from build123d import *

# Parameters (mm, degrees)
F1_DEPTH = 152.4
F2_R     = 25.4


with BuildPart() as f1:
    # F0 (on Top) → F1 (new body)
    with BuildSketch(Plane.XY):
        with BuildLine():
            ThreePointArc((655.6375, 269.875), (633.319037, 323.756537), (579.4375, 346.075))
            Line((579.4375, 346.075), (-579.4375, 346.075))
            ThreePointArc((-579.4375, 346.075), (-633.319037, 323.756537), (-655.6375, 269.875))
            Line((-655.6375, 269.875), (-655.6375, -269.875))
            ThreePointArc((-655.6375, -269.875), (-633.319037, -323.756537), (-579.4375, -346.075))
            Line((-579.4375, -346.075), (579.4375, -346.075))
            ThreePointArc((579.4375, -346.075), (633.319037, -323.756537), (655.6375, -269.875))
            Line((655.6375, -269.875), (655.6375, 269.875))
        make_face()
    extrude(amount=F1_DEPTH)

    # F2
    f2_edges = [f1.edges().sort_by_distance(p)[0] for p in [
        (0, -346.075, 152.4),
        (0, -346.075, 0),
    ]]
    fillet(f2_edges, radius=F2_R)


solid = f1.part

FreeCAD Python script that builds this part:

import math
import FreeCAD as App
import Part
import Sketcher

V = App.Vector
Q = App.Units.Quantity


def edges_at(feature, points):
    """Names of the edges that pass closest to the given points."""
    edges = feature.Shape.Edges
    near = lambda p: min(range(len(edges)), key=lambda i: edges[i].distToShape(Part.Vertex(*p))[0])
    return sorted({f"Edge{near(p) + 1}" for p in points})

doc = App.newDocument("Part")
body = doc.addObject("PartDesign::Body", "Body")

# Sketch on XY plane
sketch1 = doc.addObject("Sketcher::SketchObject", "Sketch")
body.addObject(sketch1)
sketch1.AttachmentSupport = (doc.XY_Plane, [""])
sketch1.MapMode = "FlatFace"
sketch1.addGeometry(Part.ArcOfCircle(Part.Circle(V(579, 270, 0), V(0, 0, 1), 76), math.radians(0), math.radians(90)), False)
sketch1.addGeometry(Part.LineSegment(V(579, 346, 0), V(-579, 346, 0)), False)
sketch1.addGeometry(Part.ArcOfCircle(Part.Circle(V(-579, 270, 0), V(0, 0, 1), 76), math.radians(90), math.radians(180)), False)
sketch1.addGeometry(Part.LineSegment(V(-656, 270, 0), V(-656, -270, 0)), False)
sketch1.addGeometry(Part.ArcOfCircle(Part.Circle(V(-579, -270, 0), V(0, 0, 1), 76), math.radians(180), math.radians(270)), False)
sketch1.addGeometry(Part.LineSegment(V(-579, -346, 0), V(579, -346, 0)), False)
sketch1.addGeometry(Part.ArcOfCircle(Part.Circle(V(579, -270, 0), V(0, 0, 1), 76), math.radians(-90), math.radians(0)), False)
sketch1.addGeometry(Part.LineSegment(V(656, -270, 0), V(656, 270, 0)), False)
sketch1.addConstraint(Sketcher.Constraint("Tangent", 0, 2, 1, 1))
sketch1.addConstraint(Sketcher.Constraint("Tangent", 1, 2, 2, 1))
sketch1.addConstraint(Sketcher.Constraint("Tangent", 2, 2, 3, 1))
sketch1.addConstraint(Sketcher.Constraint("Tangent", 3, 2, 4, 1))
sketch1.addConstraint(Sketcher.Constraint("Tangent", 4, 2, 5, 1))
sketch1.addConstraint(Sketcher.Constraint("Tangent", 5, 2, 6, 1))
sketch1.addConstraint(Sketcher.Constraint("Tangent", 6, 2, 7, 1))
sketch1.addConstraint(Sketcher.Constraint("Tangent", 7, 2, 0, 1))
sketch1.addConstraint(Sketcher.Constraint("Horizontal", 1))
sketch1.addConstraint(Sketcher.Constraint("Vertical", 3))
sketch1.addConstraint(Sketcher.Constraint("Horizontal", 5))
sketch1.addConstraint(Sketcher.Constraint("Vertical", 7))
sketch1.addConstraint(Sketcher.Constraint("Equal", 0, 2))
sketch1.addConstraint(Sketcher.Constraint("Equal", 2, 4))
sketch1.addConstraint(Sketcher.Constraint("Equal", 4, 6))
sketch1.addConstraint(Sketcher.Constraint("Symmetric", 0, 3, 4, 3, -1, 1))
sketch1.addConstraint(Sketcher.Constraint("Radius", 0, Q("3 in")))
sketch1.addConstraint(Sketcher.Constraint("DistanceY", 3, 2, 3, 1, Q("21.25 in")))
sketch1.addConstraint(Sketcher.Constraint("DistanceX", 1, 2, 1, 1, Q("45.625 in")))
pad1 = doc.addObject("PartDesign::Pad", "Pad")
body.addObject(pad1)
pad1.Profile = sketch1
pad1.Length = Q("6 in")
doc.recompute()

fillet = doc.addObject("PartDesign::Fillet", "Fillet")
body.addObject(fillet)
fillet.Base = (pad1, edges_at(pad1, [(0, -346.075, 152.4), (0, -346.075, 0)]))
fillet.Radius = Q("1 in")

doc.recompute()
